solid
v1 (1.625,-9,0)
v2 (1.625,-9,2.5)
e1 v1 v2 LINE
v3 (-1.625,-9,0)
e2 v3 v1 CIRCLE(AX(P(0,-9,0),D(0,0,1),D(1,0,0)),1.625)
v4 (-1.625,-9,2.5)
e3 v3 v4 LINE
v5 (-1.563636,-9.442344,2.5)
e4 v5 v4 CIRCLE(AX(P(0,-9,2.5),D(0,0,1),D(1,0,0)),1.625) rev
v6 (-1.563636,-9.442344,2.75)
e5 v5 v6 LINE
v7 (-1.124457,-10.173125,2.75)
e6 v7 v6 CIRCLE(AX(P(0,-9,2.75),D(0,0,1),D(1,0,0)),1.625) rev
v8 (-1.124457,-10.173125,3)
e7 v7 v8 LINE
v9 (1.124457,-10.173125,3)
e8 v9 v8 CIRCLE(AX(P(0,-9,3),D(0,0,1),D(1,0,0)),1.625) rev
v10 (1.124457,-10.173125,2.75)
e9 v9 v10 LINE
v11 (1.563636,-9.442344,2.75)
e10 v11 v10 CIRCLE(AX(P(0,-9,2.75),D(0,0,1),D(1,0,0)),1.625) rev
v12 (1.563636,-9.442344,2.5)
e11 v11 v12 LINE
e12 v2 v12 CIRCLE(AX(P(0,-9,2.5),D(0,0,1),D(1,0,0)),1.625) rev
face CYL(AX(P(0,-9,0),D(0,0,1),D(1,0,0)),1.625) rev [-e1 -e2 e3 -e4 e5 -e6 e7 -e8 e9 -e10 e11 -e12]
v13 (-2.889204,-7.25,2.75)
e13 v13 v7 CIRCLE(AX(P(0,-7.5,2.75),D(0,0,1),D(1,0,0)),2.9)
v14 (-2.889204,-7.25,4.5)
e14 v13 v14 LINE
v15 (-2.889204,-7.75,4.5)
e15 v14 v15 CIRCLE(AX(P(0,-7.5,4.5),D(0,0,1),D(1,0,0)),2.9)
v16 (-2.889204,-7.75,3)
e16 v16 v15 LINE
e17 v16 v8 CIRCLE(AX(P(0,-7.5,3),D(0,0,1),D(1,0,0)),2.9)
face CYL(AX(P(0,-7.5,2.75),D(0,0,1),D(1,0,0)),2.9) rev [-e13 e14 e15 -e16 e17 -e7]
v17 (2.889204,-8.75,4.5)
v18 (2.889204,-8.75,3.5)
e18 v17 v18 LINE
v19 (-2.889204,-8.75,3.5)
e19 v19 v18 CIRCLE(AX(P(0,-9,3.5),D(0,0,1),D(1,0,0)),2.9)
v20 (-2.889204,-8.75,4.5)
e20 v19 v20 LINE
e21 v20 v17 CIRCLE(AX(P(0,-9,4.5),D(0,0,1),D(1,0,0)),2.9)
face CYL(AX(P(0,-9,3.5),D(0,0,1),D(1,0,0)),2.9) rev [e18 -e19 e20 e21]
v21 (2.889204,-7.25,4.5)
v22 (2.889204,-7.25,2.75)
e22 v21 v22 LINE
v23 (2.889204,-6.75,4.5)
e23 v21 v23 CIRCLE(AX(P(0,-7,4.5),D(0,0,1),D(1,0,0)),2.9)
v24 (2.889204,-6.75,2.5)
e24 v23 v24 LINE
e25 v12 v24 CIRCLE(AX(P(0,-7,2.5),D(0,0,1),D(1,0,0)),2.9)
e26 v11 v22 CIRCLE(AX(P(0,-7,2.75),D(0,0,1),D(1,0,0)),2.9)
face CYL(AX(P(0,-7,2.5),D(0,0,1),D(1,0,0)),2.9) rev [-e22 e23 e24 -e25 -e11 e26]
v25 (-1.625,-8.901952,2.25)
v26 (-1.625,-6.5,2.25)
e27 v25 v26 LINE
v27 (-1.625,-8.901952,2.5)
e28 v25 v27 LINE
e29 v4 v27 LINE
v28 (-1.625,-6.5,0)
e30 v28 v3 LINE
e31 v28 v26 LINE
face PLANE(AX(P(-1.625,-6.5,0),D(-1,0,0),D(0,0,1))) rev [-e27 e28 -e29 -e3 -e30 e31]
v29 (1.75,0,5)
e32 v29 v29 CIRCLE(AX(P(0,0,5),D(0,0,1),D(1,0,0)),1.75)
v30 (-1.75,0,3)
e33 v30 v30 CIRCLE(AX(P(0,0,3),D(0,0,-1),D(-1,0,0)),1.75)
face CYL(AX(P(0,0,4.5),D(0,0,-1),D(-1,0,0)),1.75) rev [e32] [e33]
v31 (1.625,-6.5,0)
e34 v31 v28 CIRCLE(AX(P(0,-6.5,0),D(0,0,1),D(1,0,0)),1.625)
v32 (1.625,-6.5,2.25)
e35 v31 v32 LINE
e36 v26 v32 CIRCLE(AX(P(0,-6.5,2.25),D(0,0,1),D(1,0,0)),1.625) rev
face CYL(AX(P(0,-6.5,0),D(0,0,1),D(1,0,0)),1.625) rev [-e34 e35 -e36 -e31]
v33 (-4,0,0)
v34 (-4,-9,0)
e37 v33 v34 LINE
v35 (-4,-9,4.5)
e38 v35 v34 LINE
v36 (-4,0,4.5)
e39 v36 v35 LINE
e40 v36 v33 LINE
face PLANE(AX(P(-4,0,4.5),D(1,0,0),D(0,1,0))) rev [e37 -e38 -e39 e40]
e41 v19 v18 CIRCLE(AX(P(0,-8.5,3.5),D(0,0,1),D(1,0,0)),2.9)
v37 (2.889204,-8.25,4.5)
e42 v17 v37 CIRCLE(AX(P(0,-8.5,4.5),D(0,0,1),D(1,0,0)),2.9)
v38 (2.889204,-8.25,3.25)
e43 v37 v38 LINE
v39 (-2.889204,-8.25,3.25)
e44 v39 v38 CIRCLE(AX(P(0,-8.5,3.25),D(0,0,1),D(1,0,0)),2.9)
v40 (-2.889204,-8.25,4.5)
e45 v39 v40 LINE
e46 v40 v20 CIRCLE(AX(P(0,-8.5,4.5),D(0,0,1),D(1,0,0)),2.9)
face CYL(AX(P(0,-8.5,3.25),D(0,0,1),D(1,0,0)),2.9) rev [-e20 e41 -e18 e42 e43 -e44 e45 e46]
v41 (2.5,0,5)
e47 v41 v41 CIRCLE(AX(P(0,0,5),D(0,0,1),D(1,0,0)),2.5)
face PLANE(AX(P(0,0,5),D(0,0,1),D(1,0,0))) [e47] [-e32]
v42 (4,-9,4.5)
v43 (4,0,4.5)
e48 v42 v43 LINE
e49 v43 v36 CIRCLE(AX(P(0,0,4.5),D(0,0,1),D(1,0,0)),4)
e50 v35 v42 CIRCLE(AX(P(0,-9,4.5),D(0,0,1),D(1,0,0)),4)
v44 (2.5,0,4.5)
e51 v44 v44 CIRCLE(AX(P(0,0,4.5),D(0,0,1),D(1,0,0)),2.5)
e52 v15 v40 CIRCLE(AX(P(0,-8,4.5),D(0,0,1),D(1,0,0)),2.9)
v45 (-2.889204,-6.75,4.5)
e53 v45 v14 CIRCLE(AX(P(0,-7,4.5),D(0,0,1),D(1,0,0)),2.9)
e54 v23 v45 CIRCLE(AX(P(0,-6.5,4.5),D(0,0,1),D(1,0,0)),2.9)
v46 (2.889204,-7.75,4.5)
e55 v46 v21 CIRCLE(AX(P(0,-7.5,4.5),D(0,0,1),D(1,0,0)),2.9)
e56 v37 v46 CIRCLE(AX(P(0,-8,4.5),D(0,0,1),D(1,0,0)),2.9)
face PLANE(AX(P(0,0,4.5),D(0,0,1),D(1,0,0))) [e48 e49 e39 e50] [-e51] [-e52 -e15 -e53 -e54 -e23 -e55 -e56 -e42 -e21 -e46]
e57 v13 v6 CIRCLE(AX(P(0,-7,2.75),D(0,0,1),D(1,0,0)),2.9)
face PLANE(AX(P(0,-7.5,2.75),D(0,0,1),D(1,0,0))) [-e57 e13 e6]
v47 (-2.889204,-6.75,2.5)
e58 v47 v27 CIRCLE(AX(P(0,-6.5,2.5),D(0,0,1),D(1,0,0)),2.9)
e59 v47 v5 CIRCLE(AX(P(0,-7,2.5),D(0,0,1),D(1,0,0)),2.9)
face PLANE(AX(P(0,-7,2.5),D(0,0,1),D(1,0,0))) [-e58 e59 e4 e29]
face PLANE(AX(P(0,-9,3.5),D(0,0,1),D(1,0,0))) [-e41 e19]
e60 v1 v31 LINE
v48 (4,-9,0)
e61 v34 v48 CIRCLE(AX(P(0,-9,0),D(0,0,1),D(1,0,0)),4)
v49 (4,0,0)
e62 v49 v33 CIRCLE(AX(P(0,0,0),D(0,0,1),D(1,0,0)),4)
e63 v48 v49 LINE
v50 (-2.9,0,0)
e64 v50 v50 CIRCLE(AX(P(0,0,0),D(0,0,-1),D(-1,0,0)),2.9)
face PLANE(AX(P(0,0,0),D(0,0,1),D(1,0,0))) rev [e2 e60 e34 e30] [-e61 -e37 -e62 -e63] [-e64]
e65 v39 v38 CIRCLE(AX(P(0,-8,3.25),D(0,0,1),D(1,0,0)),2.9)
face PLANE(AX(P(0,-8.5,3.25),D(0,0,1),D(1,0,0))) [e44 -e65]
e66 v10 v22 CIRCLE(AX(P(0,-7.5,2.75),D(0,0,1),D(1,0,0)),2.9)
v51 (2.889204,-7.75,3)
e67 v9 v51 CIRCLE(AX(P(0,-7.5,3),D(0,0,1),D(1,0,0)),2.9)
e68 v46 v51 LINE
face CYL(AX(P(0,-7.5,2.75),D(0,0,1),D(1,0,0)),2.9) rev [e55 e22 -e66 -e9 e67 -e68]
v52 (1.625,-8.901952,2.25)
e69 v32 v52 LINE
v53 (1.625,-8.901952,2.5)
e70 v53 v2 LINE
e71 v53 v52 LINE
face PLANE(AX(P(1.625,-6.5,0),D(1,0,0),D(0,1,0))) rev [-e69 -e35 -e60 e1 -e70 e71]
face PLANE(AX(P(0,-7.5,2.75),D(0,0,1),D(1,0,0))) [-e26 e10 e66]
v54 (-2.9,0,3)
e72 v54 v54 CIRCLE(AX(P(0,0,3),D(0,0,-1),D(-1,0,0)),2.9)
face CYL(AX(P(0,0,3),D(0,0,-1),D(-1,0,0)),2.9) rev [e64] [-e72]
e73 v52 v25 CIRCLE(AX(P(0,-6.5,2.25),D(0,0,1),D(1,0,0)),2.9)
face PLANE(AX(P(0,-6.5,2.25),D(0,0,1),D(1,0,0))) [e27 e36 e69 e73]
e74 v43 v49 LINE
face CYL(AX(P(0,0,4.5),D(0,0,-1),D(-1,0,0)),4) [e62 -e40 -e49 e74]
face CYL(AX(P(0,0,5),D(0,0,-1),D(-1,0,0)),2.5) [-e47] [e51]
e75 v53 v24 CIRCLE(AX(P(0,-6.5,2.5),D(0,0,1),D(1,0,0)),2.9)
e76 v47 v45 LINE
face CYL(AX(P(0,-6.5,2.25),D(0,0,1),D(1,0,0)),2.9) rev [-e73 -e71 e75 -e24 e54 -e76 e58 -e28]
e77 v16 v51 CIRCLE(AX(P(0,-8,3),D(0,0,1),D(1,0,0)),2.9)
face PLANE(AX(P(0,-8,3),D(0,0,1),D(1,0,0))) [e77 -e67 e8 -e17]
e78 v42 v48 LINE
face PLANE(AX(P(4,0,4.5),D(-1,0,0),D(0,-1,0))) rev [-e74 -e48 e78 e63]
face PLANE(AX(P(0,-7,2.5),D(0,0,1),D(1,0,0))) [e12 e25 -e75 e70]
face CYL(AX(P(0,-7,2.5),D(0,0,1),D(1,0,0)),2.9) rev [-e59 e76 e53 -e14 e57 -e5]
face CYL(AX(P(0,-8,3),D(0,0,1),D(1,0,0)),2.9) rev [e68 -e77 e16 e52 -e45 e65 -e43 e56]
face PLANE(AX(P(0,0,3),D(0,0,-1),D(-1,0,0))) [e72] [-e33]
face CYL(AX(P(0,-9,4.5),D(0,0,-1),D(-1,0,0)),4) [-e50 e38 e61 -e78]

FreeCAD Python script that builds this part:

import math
import FreeCAD as App
import Part
import Sketcher

V = App.Vector
Q = App.Units.Quantity

doc = App.newDocument("Part")
body = doc.addObject("PartDesign::Body", "Body")

# Sketch on XY plane
sketch1 = body.newObject("Sketcher::SketchObject", "Sketch")
sketch1.AttachmentSupport = (doc.getObject("XY_Plane"), [""])
sketch1.MapMode = "FlatFace"
sketch1.addGeometry(Part.LineSegment(V(-4, 0, 0), V(-4, -9, 0)), False)
sketch1.addGeometry(Part.ArcOfCircle(Part.Circle(V(0, -9, 0), V(0, 0, 1), 4), math.radians(180), math.radians(360)), False)
sketch1.addGeometry(Part.LineSegment(V(4, -9, 0), V(4, 0, 0)), False)
sketch1.addGeometry(Part.ArcOfCircle(Part.Circle(V(0, 0, 0), V(0, 0, 1), 4), math.radians(0), math.radians(180)), False)
sketch1.addGeometry(Part.Circle(V(0, 0, 0), V(0, 0, 1), 1.8), False)
sketch1.addConstraint(Sketcher.Constraint("Tangent", 0, 2, 1, 1))
sketch1.addConstraint(Sketcher.Constraint("Tangent", 1, 2, 2, 1))
sketch1.addConstraint(Sketcher.Constraint("Tangent", 2, 2, 3, 1))
sketch1.addConstraint(Sketcher.Constraint("Tangent", 3, 2, 0, 1))
sketch1.addConstraint(Sketcher.Constraint("Vertical", 0))
sketch1.addConstraint(Sketcher.Constraint("Vertical", 2))
sketch1.addConstraint(Sketcher.Constraint("Coincident", 3, 3, -1, 1))
sketch1.addConstraint(Sketcher.Constraint("Coincident", 4, 3, -1, 1))
sketch1.addConstraint(Sketcher.Constraint("Radius", 1, Q("4 mm")))
sketch1.addConstraint(Sketcher.Constraint("Diameter", 4, Q("3.5 mm")))
sketch1.addConstraint(Sketcher.Constraint("DistanceY", 0, 2, 0, 1, Q("9 mm")))
pad1 = body.newObject("PartDesign::Pad", "Pad")
pad1.Profile = sketch1
pad1.Length = 4.5

# Sketch on XY plane
sketch2 = body.newObject("Sketcher::SketchObject", "Sketch001")
sketch2.AttachmentSupport = (doc.getObject("XY_Plane"), [""])
sketch2.MapMode = "FlatFace"
sketch2.AttachmentOffset = App.Placement(V(0, 0, 4.5), App.Rotation())
sketch2.addGeometry(Part.Circle(V(0, 0, 0), V(0, 0, 1), 2.5), False)
sketch2.addGeometry(Part.Circle(V(0, 0, 0), V(0, 0, 1), 1.8), False)
sketch2.addConstraint(Sketcher.Constraint("Coincident", 0, 3, -1, 1))
sketch2.addConstraint(Sketcher.Constraint("Coincident", 1, 3, -1, 1))
sketch2.addConstraint(Sketcher.Constraint("Diameter", 0, Q("5 mm")))
sketch2.addConstraint(Sketcher.Constraint("Diameter", 1, Q("3.5 mm")))
pad2 = body.newObject("PartDesign::Pad", "Pad001")
pad2.Profile = sketch2
pad2.Length = 0.5

# Sketch on XY plane
sketch3 = body.newObject("Sketcher::SketchObject", "Sketch002")
sketch3.AttachmentSupport = (doc.getObject("XY_Plane"), [""])
sketch3.MapMode = "FlatFace"
sketch3.AttachmentOffset = App.Placement(V(0, 0, 4.5), App.Rotation())
sketch3.addGeometry(Part.LineSegment(V(-1.6, -6.5, 0), V(-1.6, -9, 0)), False)
sketch3.addGeometry(Part.ArcOfCircle(Part.Circle(V(0, -9, 0), V(0, 0, 1), 1.6), math.radians(180), math.radians(360)), False)
sketch3.addGeometry(Part.LineSegment(V(1.6, -9, 0), V(1.6, -6.5, 0)), False)
sketch3.addGeometry(Part.ArcOfCircle(Part.Circle(V(0, -6.5, 0), V(0, 0, 1), 1.6), math.radians(0), math.radians(180)), False)
sketch3.addConstraint(Sketcher.Constraint("Tangent", 0, 2, 1, 1))
sketch3.addConstraint(Sketcher.Constraint("Tangent", 1, 2, 2, 1))
sketch3.addConstraint(Sketcher.Constraint("Tangent", 2, 2, 3, 1))
sketch3.addConstraint(Sketcher.Constraint("Tangent", 3, 2, 0, 1))
sketch3.addConstraint(Sketcher.Constraint("Vertical", 0))
sketch3.addConstraint(Sketcher.Constraint("Vertical", 2))
sketch3.addConstraint(Sketcher.Constraint("PointOnObject", 1, 3, -2))
sketch3.addConstraint(Sketcher.Constraint("DistanceY", 0, 2, 0, 1, Q("2.5 mm")))
sketch3.addConstraint(Sketcher.Constraint("DistanceY", 1, 3, -1, 1, Q("9 mm")))
sketch3.addConstraint(Sketcher.Constraint("Radius", 1, Q("1.625 mm")))
pocket1 = body.newObject("PartDesign::Pocket", "Pocket")
pocket1.Profile = sketch3
pocket1.Type = "ThroughAll"

# Sketch on XY plane
sketch4 = body.newObject("Sketcher::SketchObject", "Sketch003")
sketch4.AttachmentSupport = (doc.getObject("XY_Plane"), [""])
sketch4.MapMode = "FlatFace"
sketch4.AttachmentOffset = App.Placement(V(0, 0, 4.5), App.Rotation())
sketch4.addGeometry(Part.Circle(V(0, -9, 0), V(0, 0, 1), 2.9), False)
sketch4.addConstraint(Sketcher.Constraint("PointOnObject", 0, 3, -2))
sketch4.addConstraint(Sketcher.Constraint("Diameter", 0, Q("5.8 mm")))
sketch4.addConstraint(Sketcher.Constraint("DistanceY", 0, 3, -1, 1, Q("9 mm")))
pocket2 = body.newObject("PartDesign::Pocket", "Pocket001")
pocket2.Profile = sketch4
pocket2.Length = 1

# Sketch on XY plane
sketch5 = body.newObject("Sketcher::SketchObject", "Sketch004")
sketch5.AttachmentSupport = (doc.getObject("XY_Plane"), [""])
sketch5.MapMode = "FlatFace"
sketch5.AttachmentOffset = App.Placement(V(0, 0, 4.5), App.Rotation())
sketch5.addGeometry(Part.Circle(V(0, -8.5, 0), V(0, 0, 1), 2.9), False)
sketch5.addConstraint(Sketcher.Constraint("PointOnObject", 0, 3, -2))
sketch5.addConstraint(Sketcher.Constraint("Diameter", 0, Q("5.8 mm")))
sketch5.addConstraint(Sketcher.Constraint("DistanceY", 0, 3, -1, 1, Q("8.5 mm")))
pocket3 = body.newObject("PartDesign::Pocket", "Pocket002")
pocket3.Profile = sketch5
pocket3.Length = 1.25

# Sketch on XY plane
sketch6 = body.newObject("Sketcher::SketchObject", "Sketch005")
sketch6.AttachmentSupport = (doc.getObject("XY_Plane"), [""])
sketch6.MapMode = "FlatFace"
sketch6.AttachmentOffset = App.Placement(V(0, 0, 4.5), App.Rotation())
sketch6.addGeometry(Part.Circle(V(0, -8, 0), V(0, 0, 1), 2.9), False)
sketch6.addConstraint(Sketcher.Constraint("PointOnObject", 0, 3, -2))
sketch6.addConstraint(Sketcher.Constraint("Diameter", 0, Q("5.8 mm")))
sketch6.addConstraint(Sketcher.Constraint("DistanceY", 0, 3, -1, 1, Q("8 mm")))
pocket4 = body.newObject("PartDesign::Pocket", "Pocket003")
pocket4.Profile = sketch6
pocket4.Length = 1.5

# Sketch on XY plane
sketch7 = body.newObject("Sketcher::SketchObject", "Sketch006")
sketch7.AttachmentSupport = (doc.getObject("XY_Plane"), [""])
sketch7.MapMode = "FlatFace"
sketch7.AttachmentOffset = App.Placement(V(0, 0, 4.5), App.Rotation())
sketch7.addGeometry(Part.Circle(V(0, -7.5, 0), V(0, 0, 1), 2.9), False)
sketch7.addConstraint(Sketcher.Constraint("PointOnObject", 0, 3, -2))
sketch7.addConstraint(Sketcher.Constraint("Diameter", 0, Q("5.8 mm")))
sketch7.addConstraint(Sketcher.Constraint("DistanceY", 0, 3, -1, 1, Q("7.5 mm")))
pocket5 = body.newObject("PartDesign::Pocket", "Pocket004")
pocket5.Profile = sketch7
pocket5.Length = 1.75

# Sketch on XY plane
sketch8 = body.newObject("Sketcher::SketchObject", "Sketch007")
sketch8.AttachmentSupport = (doc.getObject("XY_Plane"), [""])
sketch8.MapMode = "FlatFace"
sketch8.AttachmentOffset = App.Placement(V(0, 0, 4.5), App.Rotation())
sketch8.addGeometry(Part.Circle(V(0, -7, 0), V(0, 0, 1), 2.9), False)
sketch8.addConstraint(Sketcher.Constraint("PointOnObject", 0, 3, -2))
sketch8.addConstraint(Sketcher.Constraint("Diameter", 0, Q("5.8 mm")))
sketch8.addConstraint(Sketcher.Constraint("DistanceY", 0, 3, -1, 1, Q("7 mm")))
pocket6 = body.newObject("PartDesign::Pocket", "Pocket005")
pocket6.Profile = sketch8
pocket6.Length = 2

# Sketch on XY plane
sketch9 = body.newObject("Sketcher::SketchObject", "Sketch008")
sketch9.AttachmentSupport = (doc.getObject("XY_Plane"), [""])
sketch9.MapMode = "FlatFace"
sketch9.AttachmentOffset = App.Placement(V(0, 0, 4.5), App.Rotation())
sketch9.addGeometry(Part.Circle(V(0, -6.5, 0), V(0, 0, 1), 2.9), False)
sketch9.addConstraint(Sketcher.Constraint("PointOnObject", 0, 3, -2))
sketch9.addConstraint(Sketcher.Constraint("Diameter", 0, Q("5.8 mm")))
sketch9.addConstraint(Sketcher.Constraint("DistanceY", 0, 3, -1, 1, Q("6.5 mm")))
pocket7 = body.newObject("PartDesign::Pocket", "Pocket006")
pocket7.Profile = sketch9
pocket7.Length = 2.25

# Sketch on XY plane
sketch10 = body.newObject("Sketcher::SketchObject", "Sketch009")
sketch10.AttachmentSupport = (doc.getObject("XY_Plane"), [""])
sketch10.MapMode = "FlatFace"
sketch10.addGeometry(Part.Circle(V(0, 0, 0), V(0, 0, 1), 2.9), False)
sketch10.addConstraint(Sketcher.Constraint("Coincident", 0, 3, -1, 1))
sketch10.addConstraint(Sketcher.Constraint("Diameter", 0, Q("5.8 mm")))
pocket8 = body.newObject("PartDesign::Pocket", "Pocket007")
pocket8.Profile = sketch10
pocket8.Length = 3
pocket8.Reversed = True

doc.recompute()
